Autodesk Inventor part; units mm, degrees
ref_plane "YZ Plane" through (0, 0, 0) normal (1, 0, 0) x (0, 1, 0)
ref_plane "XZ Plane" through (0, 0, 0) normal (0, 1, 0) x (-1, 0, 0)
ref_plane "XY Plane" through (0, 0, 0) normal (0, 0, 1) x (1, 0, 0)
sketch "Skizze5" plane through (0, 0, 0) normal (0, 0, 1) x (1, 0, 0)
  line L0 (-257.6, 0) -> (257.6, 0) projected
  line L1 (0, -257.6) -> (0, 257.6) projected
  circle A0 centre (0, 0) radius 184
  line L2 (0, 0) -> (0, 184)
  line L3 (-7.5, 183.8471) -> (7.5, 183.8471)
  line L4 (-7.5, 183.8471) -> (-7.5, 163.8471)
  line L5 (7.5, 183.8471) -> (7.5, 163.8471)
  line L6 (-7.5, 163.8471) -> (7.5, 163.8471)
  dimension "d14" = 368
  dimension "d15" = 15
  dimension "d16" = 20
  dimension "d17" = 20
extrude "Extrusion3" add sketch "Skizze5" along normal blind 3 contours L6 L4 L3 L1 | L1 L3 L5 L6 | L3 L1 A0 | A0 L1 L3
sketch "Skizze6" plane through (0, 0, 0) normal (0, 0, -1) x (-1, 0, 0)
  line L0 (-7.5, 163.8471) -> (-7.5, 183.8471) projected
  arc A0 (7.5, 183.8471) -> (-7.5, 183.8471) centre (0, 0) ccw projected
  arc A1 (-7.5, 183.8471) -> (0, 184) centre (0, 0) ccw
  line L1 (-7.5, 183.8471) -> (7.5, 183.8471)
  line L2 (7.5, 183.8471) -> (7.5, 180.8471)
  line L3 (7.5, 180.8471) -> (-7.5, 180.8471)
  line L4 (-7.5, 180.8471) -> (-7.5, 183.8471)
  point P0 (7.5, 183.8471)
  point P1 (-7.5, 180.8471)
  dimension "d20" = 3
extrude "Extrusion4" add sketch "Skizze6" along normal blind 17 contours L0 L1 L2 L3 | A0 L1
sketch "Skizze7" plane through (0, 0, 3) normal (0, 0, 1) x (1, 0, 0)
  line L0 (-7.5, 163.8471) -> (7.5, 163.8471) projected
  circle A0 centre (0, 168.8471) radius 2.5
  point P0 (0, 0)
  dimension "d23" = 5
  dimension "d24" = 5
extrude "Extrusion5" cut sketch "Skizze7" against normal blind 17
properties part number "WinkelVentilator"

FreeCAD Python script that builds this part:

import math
import FreeCAD as App
import Part
import Sketcher
from FreeCAD import Vector
Q = App.Units.Quantity

doc = App.newDocument("Part")
params = doc.addObject("Spreadsheet::Sheet", "Params")
for row, (alias, value) in enumerate([
    ("sketch1_radius", "184 mm"),
    ("sketch1_width", "15 mm"),
    ("sketch1_height", "20 mm"),
    ("pad1_length", "3 mm"),
    ("sketch2_height", "3 mm"),
    ("sketch2_radius", "184 mm"),
    ("sketch2_width", "15 mm"),
    ("pad2_length", "17 mm"),
    ("sketch3_diameter", "5 mm"),
    ("pocket1_length", "17 mm"),
], start=1):
    params.set(f"A{row}", alias)
    params.set(f"B{row}", "=" + value)
    params.setAlias(f"B{row}", alias)

body = doc.addObject("PartDesign::Body", "Body")

# Sketch on XY plane
sketch1 = body.newObject("Sketcher::SketchObject", "Sketch")
sketch1.AttachmentSupport = (doc.getObject("XY_Plane"), [""])
sketch1.MapMode = "FlatFace"
sketch1.addGeometry([
    Part.LineSegment(Vector(-7.5, 163.8471, 0), Vector(7.5, 163.8471, 0)),
    Part.LineSegment(Vector(7.5, 163.8471, 0), Vector(7.5, 183.8471, 0)),
    Part.ArcOfCircle(Part.Circle(Vector(0, 0, 0), Vector(0, 0, 1), 184), math.radians(87.663927), math.radians(92.336073)),
    Part.LineSegment(Vector(-7.5, 183.8471, 0), Vector(-7.5, 163.8471, 0)),
], False)
sketch1.addConstraint([
    Sketcher.Constraint("Coincident", 0, 2, 1, 1),
    Sketcher.Constraint("Coincident", 1, 2, 2, 1),
    Sketcher.Constraint("Coincident", 2, 2, 3, 1),
    Sketcher.Constraint("Coincident", 3, 2, 0, 1),
    Sketcher.Constraint("Horizontal", 0),
    Sketcher.Constraint("Vertical", 1),
    Sketcher.Constraint("Vertical", 3),
    Sketcher.Constraint("Coincident", 2, 3, -1, 1),
    Sketcher.Constraint("Horizontal", 1, 2, 2, 2),
    Sketcher.Constraint("Radius", 2, Q("184 mm")),
    Sketcher.Constraint("DistanceX", 0, 1, 0, 2, Q("15 mm")),
    Sketcher.Constraint("DistanceY", 1, 1, 1, 2, Q("20 mm")),
])
sketch1.setExpression("Constraints[9]", "Params.sketch1_radius")
sketch1.setExpression("Constraints[10]", "Params.sketch1_width")
sketch1.setExpression("Constraints[11]", "Params.sketch1_height")
pad1 = body.newObject("PartDesign::Pad", "Pad")
pad1.Profile = sketch1
pad1.setExpression("Length", "Params.pad1_length")

# Sketch on XY plane
sketch2 = body.newObject("Sketcher::SketchObject", "Sketch001")
sketch2.AttachmentSupport = (doc.getObject("XY_Plane"), [""])
sketch2.MapMode = "FlatFace"
sketch2.addGeometry([
    Part.LineSegment(Vector(7.5, 183.8471, 0), Vector(7.5, 180.8471, 0)),
    Part.LineSegment(Vector(7.5, 180.8471, 0), Vector(-7.5, 180.8471, 0)),
    Part.LineSegment(Vector(-7.5, 180.8471, 0), Vector(-7.5, 183.8471, 0)),
    Part.ArcOfCircle(Part.Circle(Vector(0, 0, 0), Vector(0, 0, 1), 184.000017), math.radians(87.663927), math.radians(92.336073)),
], False)
sketch2.addConstraint([
    Sketcher.Constraint("Coincident", 0, 2, 1, 1),
    Sketcher.Constraint("Coincident", 1, 2, 2, 1),
    Sketcher.Constraint("Coincident", 2, 2, 3, 2),
    Sketcher.Constraint("Coincident", 3, 1, 0, 1),
    Sketcher.Constraint("Vertical", 0),
    Sketcher.Constraint("Horizontal", 1),
    Sketcher.Constraint("Vertical", 2),
    Sketcher.Constraint("Coincident", 3, 3, -1, 1),
    Sketcher.Constraint("Horizontal", 2, 2, 3, 1),
    Sketcher.Constraint("DistanceY", 0, 2, 0, 1, Q("3 mm")),
    Sketcher.Constraint("Radius", 3, Q("184 mm")),
    Sketcher.Constraint("DistanceX", 1, 2, 1, 1, Q("15 mm")),
])
sketch2.setExpression("Constraints[9]", "Params.sketch2_height")
sketch2.setExpression("Constraints[10]", "Params.sketch2_radius")
sketch2.setExpression("Constraints[11]", "Params.sketch2_width")
pad2 = body.newObject("PartDesign::Pad", "Pad001")
pad2.Profile = sketch2
pad2.setExpression("Length", "Params.pad2_length")
pad2.Reversed = True

# Sketch on XY plane
sketch3 = body.newObject("Sketcher::SketchObject", "Sketch002")
sketch3.AttachmentSupport = (doc.getObject("XY_Plane"), [""])
sketch3.MapMode = "FlatFace"
sketch3.AttachmentOffset = App.Placement(Vector(0, 0, 3), App.Rotation())
sketch3.addGeometry(Part.Circle(Vector(0, 168.8471, 0), Vector(0, 0, 1), 2.5), False)
sketch3.addConstraint([
    Sketcher.Constraint("PointOnObject", 0, 3, -2),
    Sketcher.Constraint("Diameter", 0, Q("5 mm")),
    Sketcher.Constraint("DistanceY", -1, 1, 0, 3, Q("168.847 mm")),
])
sketch3.setExpression("Constraints[1]", "Params.sketch3_diameter")
pocket1 = body.newObject("PartDesign::Pocket", "Pocket")
pocket1.Profile = sketch3
pocket1.setExpression("Length", "Params.pocket1_length")

doc.recompute()
